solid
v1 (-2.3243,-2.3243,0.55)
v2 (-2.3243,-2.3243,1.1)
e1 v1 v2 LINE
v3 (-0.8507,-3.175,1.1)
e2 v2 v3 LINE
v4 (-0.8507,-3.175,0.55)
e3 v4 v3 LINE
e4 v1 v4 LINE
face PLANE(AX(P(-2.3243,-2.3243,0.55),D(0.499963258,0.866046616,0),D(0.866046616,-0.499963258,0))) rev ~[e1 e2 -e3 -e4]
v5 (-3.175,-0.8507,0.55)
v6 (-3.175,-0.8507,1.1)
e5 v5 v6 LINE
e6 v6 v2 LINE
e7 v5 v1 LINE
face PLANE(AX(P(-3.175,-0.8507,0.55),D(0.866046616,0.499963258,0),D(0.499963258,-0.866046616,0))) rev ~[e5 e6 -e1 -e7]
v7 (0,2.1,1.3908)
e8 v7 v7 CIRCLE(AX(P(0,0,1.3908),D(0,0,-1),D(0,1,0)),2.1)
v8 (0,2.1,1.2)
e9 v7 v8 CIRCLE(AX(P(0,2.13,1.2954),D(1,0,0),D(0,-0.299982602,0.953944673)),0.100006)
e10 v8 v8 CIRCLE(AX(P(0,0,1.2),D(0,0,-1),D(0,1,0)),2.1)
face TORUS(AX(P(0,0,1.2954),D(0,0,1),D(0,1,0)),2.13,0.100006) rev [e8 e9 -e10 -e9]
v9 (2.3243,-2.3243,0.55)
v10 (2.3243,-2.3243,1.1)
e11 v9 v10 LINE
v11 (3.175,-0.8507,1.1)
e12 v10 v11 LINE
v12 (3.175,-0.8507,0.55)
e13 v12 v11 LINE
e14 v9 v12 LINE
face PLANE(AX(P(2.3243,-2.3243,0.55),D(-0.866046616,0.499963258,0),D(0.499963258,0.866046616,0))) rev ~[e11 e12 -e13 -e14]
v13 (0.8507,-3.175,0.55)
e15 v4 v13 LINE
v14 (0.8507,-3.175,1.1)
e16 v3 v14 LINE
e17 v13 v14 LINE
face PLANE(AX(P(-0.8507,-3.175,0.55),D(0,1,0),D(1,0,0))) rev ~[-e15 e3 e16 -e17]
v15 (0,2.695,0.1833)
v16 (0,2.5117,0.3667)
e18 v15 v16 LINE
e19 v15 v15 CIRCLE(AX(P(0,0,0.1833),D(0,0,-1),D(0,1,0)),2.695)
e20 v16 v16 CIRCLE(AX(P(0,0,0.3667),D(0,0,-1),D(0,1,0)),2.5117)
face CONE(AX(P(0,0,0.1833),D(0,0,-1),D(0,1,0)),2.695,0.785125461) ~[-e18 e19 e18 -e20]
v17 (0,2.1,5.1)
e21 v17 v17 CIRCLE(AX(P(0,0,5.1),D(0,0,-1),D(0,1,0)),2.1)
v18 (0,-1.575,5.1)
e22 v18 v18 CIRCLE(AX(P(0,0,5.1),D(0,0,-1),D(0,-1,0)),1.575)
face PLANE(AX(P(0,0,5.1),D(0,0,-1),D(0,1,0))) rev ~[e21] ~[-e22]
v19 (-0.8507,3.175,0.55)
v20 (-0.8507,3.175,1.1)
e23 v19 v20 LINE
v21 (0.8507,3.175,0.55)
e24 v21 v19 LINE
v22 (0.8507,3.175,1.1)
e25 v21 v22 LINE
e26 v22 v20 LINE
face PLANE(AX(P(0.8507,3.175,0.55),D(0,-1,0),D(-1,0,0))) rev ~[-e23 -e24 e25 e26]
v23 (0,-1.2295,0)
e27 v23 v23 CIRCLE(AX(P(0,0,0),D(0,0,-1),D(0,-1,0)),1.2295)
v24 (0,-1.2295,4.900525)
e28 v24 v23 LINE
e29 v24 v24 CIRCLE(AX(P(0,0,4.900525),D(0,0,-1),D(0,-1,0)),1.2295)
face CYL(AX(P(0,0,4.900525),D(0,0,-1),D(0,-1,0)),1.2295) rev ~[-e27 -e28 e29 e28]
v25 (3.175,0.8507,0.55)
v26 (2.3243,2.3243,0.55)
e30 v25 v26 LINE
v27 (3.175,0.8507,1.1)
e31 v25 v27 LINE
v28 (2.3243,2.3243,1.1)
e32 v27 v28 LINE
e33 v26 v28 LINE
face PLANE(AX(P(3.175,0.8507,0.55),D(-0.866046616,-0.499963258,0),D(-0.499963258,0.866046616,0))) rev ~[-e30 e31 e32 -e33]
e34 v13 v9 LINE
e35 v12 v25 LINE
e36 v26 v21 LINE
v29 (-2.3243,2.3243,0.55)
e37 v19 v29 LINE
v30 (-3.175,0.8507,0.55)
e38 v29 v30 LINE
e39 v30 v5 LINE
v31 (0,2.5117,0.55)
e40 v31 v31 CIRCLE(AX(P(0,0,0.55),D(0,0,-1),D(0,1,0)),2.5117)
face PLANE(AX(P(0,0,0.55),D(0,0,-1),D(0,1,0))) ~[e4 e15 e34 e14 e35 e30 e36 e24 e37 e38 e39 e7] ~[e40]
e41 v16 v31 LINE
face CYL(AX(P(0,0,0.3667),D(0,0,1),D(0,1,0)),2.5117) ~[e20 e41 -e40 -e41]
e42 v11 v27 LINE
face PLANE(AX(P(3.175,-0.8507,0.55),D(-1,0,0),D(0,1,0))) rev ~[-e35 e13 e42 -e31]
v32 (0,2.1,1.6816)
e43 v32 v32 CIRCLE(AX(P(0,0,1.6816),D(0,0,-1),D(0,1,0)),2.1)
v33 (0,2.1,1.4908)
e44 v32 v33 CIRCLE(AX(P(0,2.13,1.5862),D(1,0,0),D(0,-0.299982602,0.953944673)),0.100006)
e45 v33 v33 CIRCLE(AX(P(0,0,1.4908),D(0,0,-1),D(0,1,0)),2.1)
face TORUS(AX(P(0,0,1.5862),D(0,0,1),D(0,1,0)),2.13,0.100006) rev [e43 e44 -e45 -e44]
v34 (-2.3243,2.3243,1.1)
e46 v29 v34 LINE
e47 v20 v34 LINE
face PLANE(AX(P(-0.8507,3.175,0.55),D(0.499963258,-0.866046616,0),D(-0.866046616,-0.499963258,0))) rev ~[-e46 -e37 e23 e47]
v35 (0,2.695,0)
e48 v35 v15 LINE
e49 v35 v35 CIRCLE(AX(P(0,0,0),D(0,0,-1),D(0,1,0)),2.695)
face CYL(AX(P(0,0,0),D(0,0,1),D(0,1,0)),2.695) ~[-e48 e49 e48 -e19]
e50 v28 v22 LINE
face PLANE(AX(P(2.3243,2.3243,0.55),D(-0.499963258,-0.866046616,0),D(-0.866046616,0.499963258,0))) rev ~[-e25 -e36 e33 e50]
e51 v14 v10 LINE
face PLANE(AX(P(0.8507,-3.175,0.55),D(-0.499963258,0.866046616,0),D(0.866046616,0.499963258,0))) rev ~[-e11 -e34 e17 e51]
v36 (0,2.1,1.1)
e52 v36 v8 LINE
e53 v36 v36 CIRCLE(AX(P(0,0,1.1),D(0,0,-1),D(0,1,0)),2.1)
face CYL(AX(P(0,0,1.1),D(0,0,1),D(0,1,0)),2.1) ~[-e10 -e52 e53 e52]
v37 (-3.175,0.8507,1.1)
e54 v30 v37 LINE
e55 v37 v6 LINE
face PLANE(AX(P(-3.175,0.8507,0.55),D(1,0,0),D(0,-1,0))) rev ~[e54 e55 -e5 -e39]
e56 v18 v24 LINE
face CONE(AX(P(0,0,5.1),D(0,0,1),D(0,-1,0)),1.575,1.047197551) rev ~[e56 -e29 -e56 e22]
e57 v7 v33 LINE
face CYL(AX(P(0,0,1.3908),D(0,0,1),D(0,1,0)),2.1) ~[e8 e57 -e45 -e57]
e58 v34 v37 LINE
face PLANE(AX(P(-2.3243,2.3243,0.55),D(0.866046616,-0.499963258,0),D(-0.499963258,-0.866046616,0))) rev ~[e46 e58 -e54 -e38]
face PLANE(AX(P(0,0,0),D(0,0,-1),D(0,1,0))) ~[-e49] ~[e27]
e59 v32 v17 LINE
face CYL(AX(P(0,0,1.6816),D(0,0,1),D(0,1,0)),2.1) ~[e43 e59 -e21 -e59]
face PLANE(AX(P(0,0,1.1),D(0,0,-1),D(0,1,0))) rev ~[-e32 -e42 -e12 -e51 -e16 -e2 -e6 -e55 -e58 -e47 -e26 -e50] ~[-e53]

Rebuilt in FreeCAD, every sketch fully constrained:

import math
import FreeCAD as App
import Part
import Sketcher

V = App.Vector

doc = App.newDocument("Part")
params = doc.addObject("Spreadsheet::Sheet", "Params")
for row, (alias, value) in enumerate([
    ("sketch1_radius", "0.1 mm"),
    ("sketch1_height", "0.1 mm"),
    ("sketch1_height2", "0.55 mm"),
    ("sketch1_width", "2.1 mm"),
    ("sketch1_height3", "5.1 mm"),
    ("revolution_angle", "360 deg"),
    ("hole_diameter", "2.459 mm"),
    ("hole_csink_diameter", "3.15 mm"),
], start=1):
    params.set(f"A{row}", alias)
    params.set(f"B{row}", "=" + value)
    params.setAlias(f"B{row}", alias)

body = doc.addObject("PartDesign::Body", "Body")

# Sketch on YZ plane
sketch1 = body.newObject("Sketcher::SketchObject", "Sketch")
sketch1.AttachmentSupport = (doc.getObject("YZ_Plane"), [""])
sketch1.MapMode = "FlatFace"
sketch1.addGeometry([
    Part.LineSegment(V(0, 5.1, 0), V(0, 0, 0)),  # 0
    Part.LineSegment(V(0, 0, 0), V(2.69, 0, 0)),  # 1
    Part.LineSegment(V(2.69, 0, 0), V(2.69, 0.18, 0)),  # 2
    Part.LineSegment(V(2.69, 0.18, 0), V(2.51, 0.37, 0)),  # 3
    Part.LineSegment(V(2.51, 0.37, 0), V(2.51, 0.55, 0)),  # 4
    Part.LineSegment(V(2.51, 0.55, 0), V(4.76, 0.55, 0)),  # 5
    Part.LineSegment(V(4.76, 0.55, 0), V(4.76, 1.1, 0)),  # 6
    Part.LineSegment(V(4.76, 1.1, 0), V(2.1, 1.1, 0)),  # 7
    Part.LineSegment(V(2.1, 1.1, 0), V(2.1, 1.2, 0)),  # 8
    Part.ArcOfCircle(Part.Circle(V(2.13, 1.3, 0), V(0, 0, 1), 0.1), math.radians(107), math.radians(253)),  # 9
    Part.LineSegment(V(2.1, 1.39, 0), V(2.1, 1.49, 0)),  # 10
    Part.ArcOfCircle(Part.Circle(V(2.13, 1.59, 0), V(0, 0, 1), 0.1), math.radians(107), math.radians(253)),  # 11
    Part.LineSegment(V(2.1, 1.68, 0), V(2.1, 5.1, 0)),  # 12
    Part.LineSegment(V(2.1, 5.1, 0), V(0, 5.1, 0)),  # 13
], False)
sketch1.addConstraint([
    Sketcher.Constraint("Coincident", 0, 2, 1, 1),
    Sketcher.Constraint("Coincident", 1, 2, 2, 1),
    Sketcher.Constraint("Coincident", 2, 2, 3, 1),
    Sketcher.Constraint("Coincident", 3, 2, 4, 1),
    Sketcher.Constraint("Coincident", 4, 2, 5, 1),
    Sketcher.Constraint("Coincident", 5, 2, 6, 1),
    Sketcher.Constraint("Coincident", 6, 2, 7, 1),
    Sketcher.Constraint("Coincident", 7, 2, 8, 1),
    Sketcher.Constraint("Coincident", 8, 2, 9, 2),
    Sketcher.Constraint("Coincident", 9, 1, 10, 1),
    Sketcher.Constraint("Coincident", 10, 2, 11, 2),
    Sketcher.Constraint("Coincident", 11, 1, 12, 1),
    Sketcher.Constraint("Coincident", 12, 2, 13, 1),
    Sketcher.Constraint("Coincident", 13, 2, 0, 1),
    Sketcher.Constraint("Vertical", 0),
    Sketcher.Constraint("Horizontal", 1),
    Sketcher.Constraint("Vertical", 2),
    Sketcher.Constraint("Vertical", 4),
    Sketcher.Constraint("Horizontal", 5),
    Sketcher.Constraint("Vertical", 6),
    Sketcher.Constraint("Horizontal", 7),
    Sketcher.Constraint("Vertical", 8),
    Sketcher.Constraint("Vertical", 10),
    Sketcher.Constraint("Vertical", 12),
    Sketcher.Constraint("Horizontal", 13),
    Sketcher.Constraint("Coincident", 0, 2, -1, 1),
    Sketcher.Constraint("Equal", 9, 11),
    Sketcher.Constraint("Vertical", 9, 3, 11, 3),
    Sketcher.Constraint("Vertical", 8, 2, 9, 1),
    Sketcher.Constraint("Vertical", 10, 2, 11, 1),
    Sketcher.Constraint("Equal", 2, 4),
    Sketcher.Constraint("Equal", 8, 10),
    Sketcher.Constraint("Radius", 9, 0.1),
    Sketcher.Constraint("DistanceY", 8, 1, 8, 2, 0.1),
    Sketcher.Constraint("DistanceY", 6, 1, 6, 2, 0.55),
    Sketcher.Constraint("DistanceY", -1, 1, 6, 2, 1.1),
    Sketcher.Constraint("DistanceX", 7, 2, 9, 3, 0.03),
    Sketcher.Constraint("DistanceX", 13, 2, 13, 1, 2.1),
    Sketcher.Constraint("DistanceY", 0, 2, 0, 1, 5.1),
    Sketcher.Constraint("DistanceY", 2, 1, 2, 2, 0.1833),
    Sketcher.Constraint("DistanceX", 3, 2, 2, 2, 0.1833),
    Sketcher.Constraint("DistanceX", 1, 1, 1, 2, 2.695),
    Sketcher.Constraint("DistanceX", 5, 1, 5, 2, 2.2508),
])
sketch1.setExpression("Constraints[32]", "Params.sketch1_radius")
sketch1.setExpression("Constraints[33]", "Params.sketch1_height")
sketch1.setExpression("Constraints[34]", "Params.sketch1_height2")
sketch1.setExpression("Constraints[37]", "Params.sketch1_width")
sketch1.setExpression("Constraints[38]", "Params.sketch1_height3")
revolution = body.newObject("PartDesign::Revolution", "Revolution")
revolution.Profile = sketch1
revolution.ReferenceAxis = (sketch1, ["V_Axis"])
revolution.setExpression("Angle", "Params.revolution_angle")

# Sketch on XY plane
sketch2 = body.newObject("Sketcher::SketchObject", "Sketch001")
sketch2.AttachmentSupport = (doc.getObject("XY_Plane"), [""])
sketch2.MapMode = "FlatFace"
sketch2.AttachmentOffset = App.Placement(V(0, 0, 0.55), App.Rotation())
sketch2.addGeometry([
    Part.Circle(V(0, 0, 0), V(0, 0, 1), 4.8),  # 0
    Part.LineSegment(V(0.9, 3.2, 0), V(-0.9, 3.2, 0)),  # 1
    Part.LineSegment(V(-0.9, 3.2, 0), V(-2.3, 2.3, 0)),  # 2
    Part.LineSegment(V(-2.3, 2.3, 0), V(-3.2, 0.9, 0)),  # 3
    Part.LineSegment(V(-3.2, 0.9, 0), V(-3.2, -0.9, 0)),  # 4
    Part.LineSegment(V(-3.2, -0.9, 0), V(-2.3, -2.3, 0)),  # 5
    Part.LineSegment(V(-2.3, -2.3, 0), V(-0.9, -3.2, 0)),  # 6
    Part.LineSegment(V(-0.9, -3.2, 0), V(0.9, -3.2, 0)),  # 7
    Part.LineSegment(V(0.9, -3.2, 0), V(2.3, -2.3, 0)),  # 8
    Part.LineSegment(V(2.3, -2.3, 0), V(3.2, -0.9, 0)),  # 9
    Part.LineSegment(V(3.2, -0.9, 0), V(3.2, 0.9, 0)),  # 10
    Part.LineSegment(V(3.2, 0.9, 0), V(2.3, 2.3, 0)),  # 11
    Part.LineSegment(V(2.3, 2.3, 0), V(0.9, 3.2, 0)),  # 12
], False)
sketch2.addConstraint([
    Sketcher.Constraint("Coincident", 1, 2, 2, 1),
    Sketcher.Constraint("Coincident", 2, 2, 3, 1),
    Sketcher.Constraint("Coincident", 3, 2, 4, 1),
    Sketcher.Constraint("Coincident", 4, 2, 5, 1),
    Sketcher.Constraint("Coincident", 5, 2, 6, 1),
    Sketcher.Constraint("Coincident", 6, 2, 7, 1),
    Sketcher.Constraint("Coincident", 7, 2, 8, 1),
    Sketcher.Constraint("Coincident", 8, 2, 9, 1),
    Sketcher.Constraint("Coincident", 9, 2, 10, 1),
    Sketcher.Constraint("Coincident", 10, 2, 11, 1),
    Sketcher.Constraint("Coincident", 11, 2, 12, 1),
    Sketcher.Constraint("Coincident", 12, 2, 1, 1),
    Sketcher.Constraint("Horizontal", 1),
    Sketcher.Constraint("Vertical", 4),
    Sketcher.Constraint("Horizontal", 7),
    Sketcher.Constraint("Vertical", 10),
    Sketcher.Constraint("Coincident", 0, 3, -1, 1),
    Sketcher.Constraint("Symmetric", 1, 2, 7, 2, -1, 1),
    Sketcher.Constraint("Symmetric", 2, 2, 8, 2, -1, 1),
    Sketcher.Constraint("Symmetric", 3, 2, 9, 2, -1, 1),
    Sketcher.Constraint("Symmetric", 5, 2, 11, 2, -1, 1),
    Sketcher.Constraint("Symmetric", 5, 2, 8, 2, -2),
    Sketcher.Constraint("Perpendicular", 2, 5),
    Sketcher.Constraint("Perpendicular", 3, 6),
    Sketcher.Constraint("Perpendicular", 8, 11),
    Sketcher.Constraint("Perpendicular", 9, 12),
    Sketcher.Constraint("Horizontal", 4, 2, 9, 2),
    Sketcher.Constraint("Equal", 7, 4),
    Sketcher.Constraint("Equal", 2, 3),
    Sketcher.Constraint("Diameter", 0, 9.525),
    Sketcher.Constraint("DistanceX", 1, 2, 1, 1, 1.7014),
    Sketcher.Constraint("DistanceY", -1, 1, 1, 2, 3.175),
    Sketcher.Constraint("DistanceY", 4, 2, 2, 2, 3.175),
])
pocket1 = body.newObject("PartDesign::Pocket", "Pocket")
pocket1.Profile = sketch2
pocket1.Type = "ThroughAll"
pocket1.Reversed = True

# Sketch on XY plane
sketch3 = body.newObject("Sketcher::SketchObject", "Sketch002")
sketch3.AttachmentSupport = (doc.getObject("XY_Plane"), [""])
sketch3.MapMode = "FlatFace"
sketch3.AttachmentOffset = App.Placement(V(0, 0, 5.1), App.Rotation())
sketch3.addGeometry(Part.Circle(V(0, 0, 0), V(0, 0, 1), 1.2), False)
sketch3.addConstraint([
    Sketcher.Constraint("Coincident", 0, 3, -1, 1),
    Sketcher.Constraint("Diameter", 0, 2.459),
])
doc.recompute()
hole = body.newObject("PartDesign::Hole", "Hole")
hole.Profile = sketch3
hole.ThreadType = "None"
hole.setExpression("Diameter", "Params.hole_diameter")
hole.DepthType = "ThroughAll"
hole.HoleCutType = "Countersink"
hole.setExpression("HoleCutDiameter", "Params.hole_csink_diameter")
hole.HoleCutCountersinkAngle = 120

doc.recompute()
